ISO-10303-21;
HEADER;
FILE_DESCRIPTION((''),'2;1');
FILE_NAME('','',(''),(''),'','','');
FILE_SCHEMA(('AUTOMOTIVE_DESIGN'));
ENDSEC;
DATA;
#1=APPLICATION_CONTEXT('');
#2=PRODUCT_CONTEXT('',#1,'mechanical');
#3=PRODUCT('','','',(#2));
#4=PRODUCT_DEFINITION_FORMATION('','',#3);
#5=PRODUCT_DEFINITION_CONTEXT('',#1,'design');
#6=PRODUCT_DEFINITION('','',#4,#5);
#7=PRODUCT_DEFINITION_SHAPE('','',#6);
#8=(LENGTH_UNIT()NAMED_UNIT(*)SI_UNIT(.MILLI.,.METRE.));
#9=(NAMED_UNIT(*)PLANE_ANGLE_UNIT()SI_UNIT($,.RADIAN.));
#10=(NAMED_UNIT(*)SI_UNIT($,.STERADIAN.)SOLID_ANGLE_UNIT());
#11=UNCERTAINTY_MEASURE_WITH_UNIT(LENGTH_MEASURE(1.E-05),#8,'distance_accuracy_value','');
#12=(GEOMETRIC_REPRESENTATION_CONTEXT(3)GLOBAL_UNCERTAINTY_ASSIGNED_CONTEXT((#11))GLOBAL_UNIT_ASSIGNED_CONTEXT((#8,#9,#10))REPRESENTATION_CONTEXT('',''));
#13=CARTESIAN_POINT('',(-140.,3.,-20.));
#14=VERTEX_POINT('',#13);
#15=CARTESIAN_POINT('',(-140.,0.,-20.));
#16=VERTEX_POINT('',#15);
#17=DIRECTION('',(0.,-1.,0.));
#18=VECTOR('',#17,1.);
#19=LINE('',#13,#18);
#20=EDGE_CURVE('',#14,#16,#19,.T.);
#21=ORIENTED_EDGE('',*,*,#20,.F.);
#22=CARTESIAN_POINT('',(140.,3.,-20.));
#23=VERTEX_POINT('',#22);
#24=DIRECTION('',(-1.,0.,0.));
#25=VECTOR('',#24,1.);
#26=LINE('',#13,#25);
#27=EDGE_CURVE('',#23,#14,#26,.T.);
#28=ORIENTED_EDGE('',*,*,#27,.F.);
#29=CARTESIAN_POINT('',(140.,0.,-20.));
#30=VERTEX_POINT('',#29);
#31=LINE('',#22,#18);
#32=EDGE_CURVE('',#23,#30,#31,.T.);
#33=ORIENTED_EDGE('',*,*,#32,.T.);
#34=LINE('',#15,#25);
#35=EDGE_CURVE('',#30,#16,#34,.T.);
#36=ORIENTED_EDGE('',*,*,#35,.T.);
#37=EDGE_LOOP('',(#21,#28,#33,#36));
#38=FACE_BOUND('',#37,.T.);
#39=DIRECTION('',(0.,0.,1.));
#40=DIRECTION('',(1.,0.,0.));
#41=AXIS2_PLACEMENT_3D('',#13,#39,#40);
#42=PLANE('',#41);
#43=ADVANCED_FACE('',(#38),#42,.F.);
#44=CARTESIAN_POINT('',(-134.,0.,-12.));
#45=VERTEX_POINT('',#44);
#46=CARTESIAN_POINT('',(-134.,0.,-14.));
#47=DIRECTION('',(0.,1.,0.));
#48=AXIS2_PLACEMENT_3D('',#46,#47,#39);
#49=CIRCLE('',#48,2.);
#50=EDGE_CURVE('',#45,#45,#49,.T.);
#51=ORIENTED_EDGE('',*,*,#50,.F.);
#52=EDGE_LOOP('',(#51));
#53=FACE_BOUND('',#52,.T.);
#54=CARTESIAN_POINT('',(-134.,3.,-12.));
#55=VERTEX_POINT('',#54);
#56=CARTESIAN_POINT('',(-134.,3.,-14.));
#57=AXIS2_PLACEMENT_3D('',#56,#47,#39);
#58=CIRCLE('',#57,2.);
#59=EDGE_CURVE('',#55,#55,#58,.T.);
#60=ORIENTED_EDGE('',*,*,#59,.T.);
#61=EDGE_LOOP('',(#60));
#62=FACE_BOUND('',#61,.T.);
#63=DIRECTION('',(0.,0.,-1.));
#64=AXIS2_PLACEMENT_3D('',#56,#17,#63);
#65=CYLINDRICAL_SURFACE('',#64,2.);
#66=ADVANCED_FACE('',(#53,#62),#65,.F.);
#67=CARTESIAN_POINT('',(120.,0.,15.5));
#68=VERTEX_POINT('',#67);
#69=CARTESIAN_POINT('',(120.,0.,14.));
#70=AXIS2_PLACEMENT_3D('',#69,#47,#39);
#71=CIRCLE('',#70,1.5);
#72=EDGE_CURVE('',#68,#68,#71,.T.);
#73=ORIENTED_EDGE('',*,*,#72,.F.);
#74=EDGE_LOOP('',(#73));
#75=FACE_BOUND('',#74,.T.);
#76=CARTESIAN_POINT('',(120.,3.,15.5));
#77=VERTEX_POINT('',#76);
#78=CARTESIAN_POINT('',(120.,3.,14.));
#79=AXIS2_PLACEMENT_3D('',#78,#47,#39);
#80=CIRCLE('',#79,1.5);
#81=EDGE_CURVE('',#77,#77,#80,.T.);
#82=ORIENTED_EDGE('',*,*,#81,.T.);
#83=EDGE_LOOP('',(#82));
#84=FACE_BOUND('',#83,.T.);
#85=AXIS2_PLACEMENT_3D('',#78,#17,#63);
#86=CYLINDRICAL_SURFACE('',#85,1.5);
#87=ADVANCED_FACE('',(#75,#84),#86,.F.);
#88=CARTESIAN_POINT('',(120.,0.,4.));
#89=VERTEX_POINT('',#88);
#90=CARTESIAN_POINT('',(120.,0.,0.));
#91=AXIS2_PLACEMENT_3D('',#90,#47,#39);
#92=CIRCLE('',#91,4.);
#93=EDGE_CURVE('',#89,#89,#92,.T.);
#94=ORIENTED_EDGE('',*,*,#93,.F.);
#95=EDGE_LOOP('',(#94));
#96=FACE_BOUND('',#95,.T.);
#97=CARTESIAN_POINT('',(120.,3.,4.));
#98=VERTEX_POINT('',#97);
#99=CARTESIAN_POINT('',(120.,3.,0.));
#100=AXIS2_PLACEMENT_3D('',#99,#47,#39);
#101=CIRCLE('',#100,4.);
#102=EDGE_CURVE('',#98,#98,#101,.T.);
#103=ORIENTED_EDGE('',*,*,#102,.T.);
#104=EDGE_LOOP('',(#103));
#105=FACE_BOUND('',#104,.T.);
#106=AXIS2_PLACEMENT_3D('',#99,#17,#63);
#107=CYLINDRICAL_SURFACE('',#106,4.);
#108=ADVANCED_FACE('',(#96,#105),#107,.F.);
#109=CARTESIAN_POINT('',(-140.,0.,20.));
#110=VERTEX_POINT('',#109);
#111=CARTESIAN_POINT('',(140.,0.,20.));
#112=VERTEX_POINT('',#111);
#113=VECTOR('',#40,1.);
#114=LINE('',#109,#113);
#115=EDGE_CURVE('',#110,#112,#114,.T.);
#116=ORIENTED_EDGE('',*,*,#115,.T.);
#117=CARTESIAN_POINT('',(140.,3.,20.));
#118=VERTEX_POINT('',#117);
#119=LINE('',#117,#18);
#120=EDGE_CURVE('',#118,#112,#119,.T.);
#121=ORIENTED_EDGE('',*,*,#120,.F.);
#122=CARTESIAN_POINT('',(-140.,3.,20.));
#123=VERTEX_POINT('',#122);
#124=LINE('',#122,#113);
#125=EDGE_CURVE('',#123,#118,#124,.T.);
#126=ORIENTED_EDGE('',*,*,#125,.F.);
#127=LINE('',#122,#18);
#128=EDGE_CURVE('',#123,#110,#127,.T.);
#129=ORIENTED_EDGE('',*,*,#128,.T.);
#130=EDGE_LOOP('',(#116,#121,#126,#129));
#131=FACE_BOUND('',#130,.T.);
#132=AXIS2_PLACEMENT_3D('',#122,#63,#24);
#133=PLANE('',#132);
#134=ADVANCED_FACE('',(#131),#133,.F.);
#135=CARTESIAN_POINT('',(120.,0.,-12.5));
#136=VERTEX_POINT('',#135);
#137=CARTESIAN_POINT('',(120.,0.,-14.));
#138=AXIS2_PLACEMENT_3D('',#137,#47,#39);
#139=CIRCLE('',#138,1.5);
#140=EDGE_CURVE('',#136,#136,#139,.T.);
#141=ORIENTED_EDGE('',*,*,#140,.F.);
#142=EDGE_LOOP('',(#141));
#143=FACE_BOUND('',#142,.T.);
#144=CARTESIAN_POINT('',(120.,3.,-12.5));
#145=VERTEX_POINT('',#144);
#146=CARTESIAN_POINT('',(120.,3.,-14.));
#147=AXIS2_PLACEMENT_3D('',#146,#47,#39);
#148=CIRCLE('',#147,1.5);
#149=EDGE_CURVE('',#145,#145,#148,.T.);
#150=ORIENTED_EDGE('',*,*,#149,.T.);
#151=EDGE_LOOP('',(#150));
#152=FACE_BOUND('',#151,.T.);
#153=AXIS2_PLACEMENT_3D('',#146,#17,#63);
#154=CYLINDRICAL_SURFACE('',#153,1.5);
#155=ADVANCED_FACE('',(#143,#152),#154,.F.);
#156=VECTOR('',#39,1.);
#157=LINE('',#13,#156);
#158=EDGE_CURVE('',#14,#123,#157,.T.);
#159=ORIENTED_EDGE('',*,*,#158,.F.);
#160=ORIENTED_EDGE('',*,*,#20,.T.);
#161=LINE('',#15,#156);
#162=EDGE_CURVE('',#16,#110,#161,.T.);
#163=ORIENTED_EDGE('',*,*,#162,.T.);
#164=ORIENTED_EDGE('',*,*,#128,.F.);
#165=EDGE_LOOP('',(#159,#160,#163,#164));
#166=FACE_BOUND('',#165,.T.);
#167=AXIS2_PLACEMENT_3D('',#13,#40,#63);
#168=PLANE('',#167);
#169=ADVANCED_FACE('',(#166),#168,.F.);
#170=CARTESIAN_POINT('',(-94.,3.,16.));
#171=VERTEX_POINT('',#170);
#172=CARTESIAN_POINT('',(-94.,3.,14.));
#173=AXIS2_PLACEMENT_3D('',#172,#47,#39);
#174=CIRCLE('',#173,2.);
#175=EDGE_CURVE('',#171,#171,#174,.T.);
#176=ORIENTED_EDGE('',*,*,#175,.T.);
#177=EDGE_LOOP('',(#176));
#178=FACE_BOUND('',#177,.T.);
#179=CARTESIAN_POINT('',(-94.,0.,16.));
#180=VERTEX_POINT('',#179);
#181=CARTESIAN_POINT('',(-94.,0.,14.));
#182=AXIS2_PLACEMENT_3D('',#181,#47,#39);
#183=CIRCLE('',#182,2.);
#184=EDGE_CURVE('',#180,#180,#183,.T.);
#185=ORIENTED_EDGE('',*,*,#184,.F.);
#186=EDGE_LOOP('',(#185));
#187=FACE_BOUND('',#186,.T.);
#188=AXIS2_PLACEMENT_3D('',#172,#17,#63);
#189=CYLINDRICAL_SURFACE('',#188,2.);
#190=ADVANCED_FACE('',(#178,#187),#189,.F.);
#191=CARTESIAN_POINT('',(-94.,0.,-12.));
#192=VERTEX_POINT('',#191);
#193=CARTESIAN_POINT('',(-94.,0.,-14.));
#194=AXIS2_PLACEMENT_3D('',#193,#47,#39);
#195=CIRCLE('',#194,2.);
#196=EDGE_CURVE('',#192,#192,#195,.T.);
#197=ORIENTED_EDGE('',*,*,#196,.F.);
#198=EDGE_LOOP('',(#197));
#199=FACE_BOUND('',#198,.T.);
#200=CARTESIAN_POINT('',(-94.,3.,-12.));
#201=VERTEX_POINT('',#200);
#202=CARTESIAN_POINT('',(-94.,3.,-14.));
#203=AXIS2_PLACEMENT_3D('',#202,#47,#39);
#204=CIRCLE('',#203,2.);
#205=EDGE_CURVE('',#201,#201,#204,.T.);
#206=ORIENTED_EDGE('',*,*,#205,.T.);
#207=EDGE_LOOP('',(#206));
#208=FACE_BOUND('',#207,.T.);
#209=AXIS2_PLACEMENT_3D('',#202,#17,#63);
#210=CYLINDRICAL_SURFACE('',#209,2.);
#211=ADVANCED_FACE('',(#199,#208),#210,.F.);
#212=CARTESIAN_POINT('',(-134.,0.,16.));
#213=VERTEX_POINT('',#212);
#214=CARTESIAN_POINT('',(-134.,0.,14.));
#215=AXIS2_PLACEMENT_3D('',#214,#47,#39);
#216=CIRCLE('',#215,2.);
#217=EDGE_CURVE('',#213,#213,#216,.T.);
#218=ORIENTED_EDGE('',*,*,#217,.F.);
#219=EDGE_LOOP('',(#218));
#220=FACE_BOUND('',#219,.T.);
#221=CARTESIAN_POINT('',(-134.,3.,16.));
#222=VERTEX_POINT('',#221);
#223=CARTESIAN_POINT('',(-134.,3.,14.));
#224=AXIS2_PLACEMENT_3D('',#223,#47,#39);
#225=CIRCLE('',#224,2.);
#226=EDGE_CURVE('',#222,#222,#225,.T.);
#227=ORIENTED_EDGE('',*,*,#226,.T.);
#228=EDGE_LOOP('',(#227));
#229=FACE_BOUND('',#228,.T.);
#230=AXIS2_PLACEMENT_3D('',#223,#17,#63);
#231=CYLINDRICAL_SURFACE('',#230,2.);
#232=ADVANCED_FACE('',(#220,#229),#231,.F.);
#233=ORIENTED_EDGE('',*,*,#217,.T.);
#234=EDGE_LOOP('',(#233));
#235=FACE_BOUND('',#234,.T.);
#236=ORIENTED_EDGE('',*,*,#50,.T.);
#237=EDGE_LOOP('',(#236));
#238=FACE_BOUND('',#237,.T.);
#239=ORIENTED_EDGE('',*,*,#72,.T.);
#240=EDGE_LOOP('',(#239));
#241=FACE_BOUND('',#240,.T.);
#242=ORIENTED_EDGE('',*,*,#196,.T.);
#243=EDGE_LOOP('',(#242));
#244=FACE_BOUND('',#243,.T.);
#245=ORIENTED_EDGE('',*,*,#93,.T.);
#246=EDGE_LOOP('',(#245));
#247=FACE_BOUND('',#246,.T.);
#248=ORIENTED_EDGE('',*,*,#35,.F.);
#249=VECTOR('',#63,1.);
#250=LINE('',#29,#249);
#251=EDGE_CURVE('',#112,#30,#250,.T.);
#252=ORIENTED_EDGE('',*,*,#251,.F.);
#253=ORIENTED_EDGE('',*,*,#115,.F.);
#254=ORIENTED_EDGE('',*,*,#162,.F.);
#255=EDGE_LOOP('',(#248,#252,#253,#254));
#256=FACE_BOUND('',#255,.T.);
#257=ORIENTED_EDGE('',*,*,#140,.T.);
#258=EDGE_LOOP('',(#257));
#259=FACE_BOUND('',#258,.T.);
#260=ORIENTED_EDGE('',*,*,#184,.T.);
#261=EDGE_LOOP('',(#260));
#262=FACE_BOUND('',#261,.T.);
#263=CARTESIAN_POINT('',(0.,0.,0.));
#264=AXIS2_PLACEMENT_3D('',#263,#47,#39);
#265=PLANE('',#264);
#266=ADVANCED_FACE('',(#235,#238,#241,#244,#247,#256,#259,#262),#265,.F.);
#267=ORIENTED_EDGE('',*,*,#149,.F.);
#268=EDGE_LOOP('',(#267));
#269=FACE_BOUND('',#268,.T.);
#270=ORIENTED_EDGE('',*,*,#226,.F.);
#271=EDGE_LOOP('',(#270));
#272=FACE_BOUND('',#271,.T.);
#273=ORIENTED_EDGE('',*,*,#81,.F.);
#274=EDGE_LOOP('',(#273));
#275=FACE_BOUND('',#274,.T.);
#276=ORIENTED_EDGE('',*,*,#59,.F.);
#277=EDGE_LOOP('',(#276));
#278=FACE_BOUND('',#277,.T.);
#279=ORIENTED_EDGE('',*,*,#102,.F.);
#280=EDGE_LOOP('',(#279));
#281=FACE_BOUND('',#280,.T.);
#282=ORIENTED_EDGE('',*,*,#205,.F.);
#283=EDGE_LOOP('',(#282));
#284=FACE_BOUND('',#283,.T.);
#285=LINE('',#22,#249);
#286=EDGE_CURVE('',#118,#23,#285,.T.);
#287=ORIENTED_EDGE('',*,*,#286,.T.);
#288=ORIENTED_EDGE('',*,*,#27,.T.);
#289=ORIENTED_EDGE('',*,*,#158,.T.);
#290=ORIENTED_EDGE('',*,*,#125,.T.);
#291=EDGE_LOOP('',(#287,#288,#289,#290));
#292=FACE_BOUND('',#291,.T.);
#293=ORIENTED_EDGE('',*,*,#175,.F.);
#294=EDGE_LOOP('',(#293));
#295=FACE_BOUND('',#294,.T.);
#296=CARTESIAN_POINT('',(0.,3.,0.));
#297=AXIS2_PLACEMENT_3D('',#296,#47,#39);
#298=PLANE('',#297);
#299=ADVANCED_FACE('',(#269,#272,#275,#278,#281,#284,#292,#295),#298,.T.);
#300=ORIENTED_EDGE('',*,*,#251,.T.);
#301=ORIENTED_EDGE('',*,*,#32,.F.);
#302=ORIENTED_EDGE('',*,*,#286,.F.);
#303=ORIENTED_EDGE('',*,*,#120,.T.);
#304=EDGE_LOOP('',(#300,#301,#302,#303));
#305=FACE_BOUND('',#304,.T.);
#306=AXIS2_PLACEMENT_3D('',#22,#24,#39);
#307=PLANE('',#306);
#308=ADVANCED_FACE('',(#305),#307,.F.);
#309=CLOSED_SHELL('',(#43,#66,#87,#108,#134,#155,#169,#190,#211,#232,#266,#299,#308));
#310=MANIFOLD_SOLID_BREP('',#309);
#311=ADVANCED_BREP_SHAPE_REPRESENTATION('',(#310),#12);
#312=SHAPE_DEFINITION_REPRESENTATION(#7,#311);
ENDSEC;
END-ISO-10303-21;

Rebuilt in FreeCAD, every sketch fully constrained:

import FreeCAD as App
import Part
import Sketcher

V = App.Vector
Q = App.Units.Quantity


def add_polygon(sketch, points):
    """Adds a closed chain of lines whose ends are joined by coincident constraints."""
    first, n = sketch.GeometryCount, len(points)
    for a, b in zip(points, points[1:] + points[:1]):
        sketch.addGeometry(Part.LineSegment(App.Vector(*a, 0), App.Vector(*b, 0)), False)
    for i in range(n):
        sketch.addConstraint(Sketcher.Constraint("Coincident", first + i, 2, first + (i + 1) % n, 1))

doc = App.newDocument("Part")
body = doc.addObject("PartDesign::Body", "Body")

sketch1 = body.newObject("Sketcher::SketchObject", "Sketch")
sketch1.AttachmentSupport = (doc.getObject("XZ_Plane"), [""])
sketch1.MapMode = "FlatFace"
add_polygon(sketch1, [(-140, -20), (-140, 20), (140, 20), (140, -20)])
sketch1.addGeometry(Part.Circle(V(-134, 14, 0), V(0, 0, 1), 2), False)
sketch1.addGeometry(Part.Circle(V(-94, 14, 0), V(0, 0, 1), 2), False)
sketch1.addGeometry(Part.Circle(V(120, 14, 0), V(0, 0, 1), 1.5), False)
sketch1.addGeometry(Part.Circle(V(-134, -14, 0), V(0, 0, 1), 2), False)
sketch1.addGeometry(Part.Circle(V(-94, -14, 0), V(0, 0, 1), 2), False)
sketch1.addGeometry(Part.Circle(V(120, 0, 0), V(0, 0, 1), 4), False)
sketch1.addGeometry(Part.Circle(V(120, -14, 0), V(0, 0, 1), 1.5), False)
sketch1.addConstraint([
    Sketcher.Constraint("Vertical", 0),
    Sketcher.Constraint("Horizontal", 1),
    Sketcher.Constraint("Vertical", 2),
    Sketcher.Constraint("Horizontal", 3),
    Sketcher.Constraint("Equal", 4, 5),
    Sketcher.Constraint("Equal", 5, 7),
    Sketcher.Constraint("Equal", 7, 8),
    Sketcher.Constraint("Equal", 6, 10),
    Sketcher.Constraint("Symmetric", 0, 2, 2, 2, -1, 1),
    Sketcher.Constraint("Symmetric", 4, 3, 7, 3, -1),
    Sketcher.Constraint("Symmetric", 5, 3, 8, 3, -1),
    Sketcher.Constraint("Symmetric", 6, 3, 10, 3, -1),
    Sketcher.Constraint("PointOnObject", 9, 3, -1),
    Sketcher.Constraint("Horizontal", 4, 3, 5, 3),
    Sketcher.Constraint("Horizontal", 5, 3, 6, 3),
    Sketcher.Constraint("Vertical", 6, 3, 9, 3),
    Sketcher.Constraint("Diameter", 4, Q("4 mm")),
    Sketcher.Constraint("Diameter", 6, Q("3 mm")),
    Sketcher.Constraint("Diameter", 9, Q("8 mm")),
    Sketcher.Constraint("DistanceX", 1, 1, 1, 2, Q("280 mm")),
    Sketcher.Constraint("DistanceY", 0, 1, 0, 2, Q("40 mm")),
    Sketcher.Constraint("DistanceX", 4, 3, -1, 1, Q("134 mm")),
    Sketcher.Constraint("DistanceY", -1, 1, 4, 3, Q("14 mm")),
    Sketcher.Constraint("DistanceX", 5, 3, -1, 1, Q("94 mm")),
    Sketcher.Constraint("DistanceX", -1, 1, 6, 3, Q("120 mm")),
])
pad1 = body.newObject("PartDesign::Pad", "Pad")
pad1.Profile = sketch1
pad1.Length = 3
pad1.Reversed = True

doc.recompute()
